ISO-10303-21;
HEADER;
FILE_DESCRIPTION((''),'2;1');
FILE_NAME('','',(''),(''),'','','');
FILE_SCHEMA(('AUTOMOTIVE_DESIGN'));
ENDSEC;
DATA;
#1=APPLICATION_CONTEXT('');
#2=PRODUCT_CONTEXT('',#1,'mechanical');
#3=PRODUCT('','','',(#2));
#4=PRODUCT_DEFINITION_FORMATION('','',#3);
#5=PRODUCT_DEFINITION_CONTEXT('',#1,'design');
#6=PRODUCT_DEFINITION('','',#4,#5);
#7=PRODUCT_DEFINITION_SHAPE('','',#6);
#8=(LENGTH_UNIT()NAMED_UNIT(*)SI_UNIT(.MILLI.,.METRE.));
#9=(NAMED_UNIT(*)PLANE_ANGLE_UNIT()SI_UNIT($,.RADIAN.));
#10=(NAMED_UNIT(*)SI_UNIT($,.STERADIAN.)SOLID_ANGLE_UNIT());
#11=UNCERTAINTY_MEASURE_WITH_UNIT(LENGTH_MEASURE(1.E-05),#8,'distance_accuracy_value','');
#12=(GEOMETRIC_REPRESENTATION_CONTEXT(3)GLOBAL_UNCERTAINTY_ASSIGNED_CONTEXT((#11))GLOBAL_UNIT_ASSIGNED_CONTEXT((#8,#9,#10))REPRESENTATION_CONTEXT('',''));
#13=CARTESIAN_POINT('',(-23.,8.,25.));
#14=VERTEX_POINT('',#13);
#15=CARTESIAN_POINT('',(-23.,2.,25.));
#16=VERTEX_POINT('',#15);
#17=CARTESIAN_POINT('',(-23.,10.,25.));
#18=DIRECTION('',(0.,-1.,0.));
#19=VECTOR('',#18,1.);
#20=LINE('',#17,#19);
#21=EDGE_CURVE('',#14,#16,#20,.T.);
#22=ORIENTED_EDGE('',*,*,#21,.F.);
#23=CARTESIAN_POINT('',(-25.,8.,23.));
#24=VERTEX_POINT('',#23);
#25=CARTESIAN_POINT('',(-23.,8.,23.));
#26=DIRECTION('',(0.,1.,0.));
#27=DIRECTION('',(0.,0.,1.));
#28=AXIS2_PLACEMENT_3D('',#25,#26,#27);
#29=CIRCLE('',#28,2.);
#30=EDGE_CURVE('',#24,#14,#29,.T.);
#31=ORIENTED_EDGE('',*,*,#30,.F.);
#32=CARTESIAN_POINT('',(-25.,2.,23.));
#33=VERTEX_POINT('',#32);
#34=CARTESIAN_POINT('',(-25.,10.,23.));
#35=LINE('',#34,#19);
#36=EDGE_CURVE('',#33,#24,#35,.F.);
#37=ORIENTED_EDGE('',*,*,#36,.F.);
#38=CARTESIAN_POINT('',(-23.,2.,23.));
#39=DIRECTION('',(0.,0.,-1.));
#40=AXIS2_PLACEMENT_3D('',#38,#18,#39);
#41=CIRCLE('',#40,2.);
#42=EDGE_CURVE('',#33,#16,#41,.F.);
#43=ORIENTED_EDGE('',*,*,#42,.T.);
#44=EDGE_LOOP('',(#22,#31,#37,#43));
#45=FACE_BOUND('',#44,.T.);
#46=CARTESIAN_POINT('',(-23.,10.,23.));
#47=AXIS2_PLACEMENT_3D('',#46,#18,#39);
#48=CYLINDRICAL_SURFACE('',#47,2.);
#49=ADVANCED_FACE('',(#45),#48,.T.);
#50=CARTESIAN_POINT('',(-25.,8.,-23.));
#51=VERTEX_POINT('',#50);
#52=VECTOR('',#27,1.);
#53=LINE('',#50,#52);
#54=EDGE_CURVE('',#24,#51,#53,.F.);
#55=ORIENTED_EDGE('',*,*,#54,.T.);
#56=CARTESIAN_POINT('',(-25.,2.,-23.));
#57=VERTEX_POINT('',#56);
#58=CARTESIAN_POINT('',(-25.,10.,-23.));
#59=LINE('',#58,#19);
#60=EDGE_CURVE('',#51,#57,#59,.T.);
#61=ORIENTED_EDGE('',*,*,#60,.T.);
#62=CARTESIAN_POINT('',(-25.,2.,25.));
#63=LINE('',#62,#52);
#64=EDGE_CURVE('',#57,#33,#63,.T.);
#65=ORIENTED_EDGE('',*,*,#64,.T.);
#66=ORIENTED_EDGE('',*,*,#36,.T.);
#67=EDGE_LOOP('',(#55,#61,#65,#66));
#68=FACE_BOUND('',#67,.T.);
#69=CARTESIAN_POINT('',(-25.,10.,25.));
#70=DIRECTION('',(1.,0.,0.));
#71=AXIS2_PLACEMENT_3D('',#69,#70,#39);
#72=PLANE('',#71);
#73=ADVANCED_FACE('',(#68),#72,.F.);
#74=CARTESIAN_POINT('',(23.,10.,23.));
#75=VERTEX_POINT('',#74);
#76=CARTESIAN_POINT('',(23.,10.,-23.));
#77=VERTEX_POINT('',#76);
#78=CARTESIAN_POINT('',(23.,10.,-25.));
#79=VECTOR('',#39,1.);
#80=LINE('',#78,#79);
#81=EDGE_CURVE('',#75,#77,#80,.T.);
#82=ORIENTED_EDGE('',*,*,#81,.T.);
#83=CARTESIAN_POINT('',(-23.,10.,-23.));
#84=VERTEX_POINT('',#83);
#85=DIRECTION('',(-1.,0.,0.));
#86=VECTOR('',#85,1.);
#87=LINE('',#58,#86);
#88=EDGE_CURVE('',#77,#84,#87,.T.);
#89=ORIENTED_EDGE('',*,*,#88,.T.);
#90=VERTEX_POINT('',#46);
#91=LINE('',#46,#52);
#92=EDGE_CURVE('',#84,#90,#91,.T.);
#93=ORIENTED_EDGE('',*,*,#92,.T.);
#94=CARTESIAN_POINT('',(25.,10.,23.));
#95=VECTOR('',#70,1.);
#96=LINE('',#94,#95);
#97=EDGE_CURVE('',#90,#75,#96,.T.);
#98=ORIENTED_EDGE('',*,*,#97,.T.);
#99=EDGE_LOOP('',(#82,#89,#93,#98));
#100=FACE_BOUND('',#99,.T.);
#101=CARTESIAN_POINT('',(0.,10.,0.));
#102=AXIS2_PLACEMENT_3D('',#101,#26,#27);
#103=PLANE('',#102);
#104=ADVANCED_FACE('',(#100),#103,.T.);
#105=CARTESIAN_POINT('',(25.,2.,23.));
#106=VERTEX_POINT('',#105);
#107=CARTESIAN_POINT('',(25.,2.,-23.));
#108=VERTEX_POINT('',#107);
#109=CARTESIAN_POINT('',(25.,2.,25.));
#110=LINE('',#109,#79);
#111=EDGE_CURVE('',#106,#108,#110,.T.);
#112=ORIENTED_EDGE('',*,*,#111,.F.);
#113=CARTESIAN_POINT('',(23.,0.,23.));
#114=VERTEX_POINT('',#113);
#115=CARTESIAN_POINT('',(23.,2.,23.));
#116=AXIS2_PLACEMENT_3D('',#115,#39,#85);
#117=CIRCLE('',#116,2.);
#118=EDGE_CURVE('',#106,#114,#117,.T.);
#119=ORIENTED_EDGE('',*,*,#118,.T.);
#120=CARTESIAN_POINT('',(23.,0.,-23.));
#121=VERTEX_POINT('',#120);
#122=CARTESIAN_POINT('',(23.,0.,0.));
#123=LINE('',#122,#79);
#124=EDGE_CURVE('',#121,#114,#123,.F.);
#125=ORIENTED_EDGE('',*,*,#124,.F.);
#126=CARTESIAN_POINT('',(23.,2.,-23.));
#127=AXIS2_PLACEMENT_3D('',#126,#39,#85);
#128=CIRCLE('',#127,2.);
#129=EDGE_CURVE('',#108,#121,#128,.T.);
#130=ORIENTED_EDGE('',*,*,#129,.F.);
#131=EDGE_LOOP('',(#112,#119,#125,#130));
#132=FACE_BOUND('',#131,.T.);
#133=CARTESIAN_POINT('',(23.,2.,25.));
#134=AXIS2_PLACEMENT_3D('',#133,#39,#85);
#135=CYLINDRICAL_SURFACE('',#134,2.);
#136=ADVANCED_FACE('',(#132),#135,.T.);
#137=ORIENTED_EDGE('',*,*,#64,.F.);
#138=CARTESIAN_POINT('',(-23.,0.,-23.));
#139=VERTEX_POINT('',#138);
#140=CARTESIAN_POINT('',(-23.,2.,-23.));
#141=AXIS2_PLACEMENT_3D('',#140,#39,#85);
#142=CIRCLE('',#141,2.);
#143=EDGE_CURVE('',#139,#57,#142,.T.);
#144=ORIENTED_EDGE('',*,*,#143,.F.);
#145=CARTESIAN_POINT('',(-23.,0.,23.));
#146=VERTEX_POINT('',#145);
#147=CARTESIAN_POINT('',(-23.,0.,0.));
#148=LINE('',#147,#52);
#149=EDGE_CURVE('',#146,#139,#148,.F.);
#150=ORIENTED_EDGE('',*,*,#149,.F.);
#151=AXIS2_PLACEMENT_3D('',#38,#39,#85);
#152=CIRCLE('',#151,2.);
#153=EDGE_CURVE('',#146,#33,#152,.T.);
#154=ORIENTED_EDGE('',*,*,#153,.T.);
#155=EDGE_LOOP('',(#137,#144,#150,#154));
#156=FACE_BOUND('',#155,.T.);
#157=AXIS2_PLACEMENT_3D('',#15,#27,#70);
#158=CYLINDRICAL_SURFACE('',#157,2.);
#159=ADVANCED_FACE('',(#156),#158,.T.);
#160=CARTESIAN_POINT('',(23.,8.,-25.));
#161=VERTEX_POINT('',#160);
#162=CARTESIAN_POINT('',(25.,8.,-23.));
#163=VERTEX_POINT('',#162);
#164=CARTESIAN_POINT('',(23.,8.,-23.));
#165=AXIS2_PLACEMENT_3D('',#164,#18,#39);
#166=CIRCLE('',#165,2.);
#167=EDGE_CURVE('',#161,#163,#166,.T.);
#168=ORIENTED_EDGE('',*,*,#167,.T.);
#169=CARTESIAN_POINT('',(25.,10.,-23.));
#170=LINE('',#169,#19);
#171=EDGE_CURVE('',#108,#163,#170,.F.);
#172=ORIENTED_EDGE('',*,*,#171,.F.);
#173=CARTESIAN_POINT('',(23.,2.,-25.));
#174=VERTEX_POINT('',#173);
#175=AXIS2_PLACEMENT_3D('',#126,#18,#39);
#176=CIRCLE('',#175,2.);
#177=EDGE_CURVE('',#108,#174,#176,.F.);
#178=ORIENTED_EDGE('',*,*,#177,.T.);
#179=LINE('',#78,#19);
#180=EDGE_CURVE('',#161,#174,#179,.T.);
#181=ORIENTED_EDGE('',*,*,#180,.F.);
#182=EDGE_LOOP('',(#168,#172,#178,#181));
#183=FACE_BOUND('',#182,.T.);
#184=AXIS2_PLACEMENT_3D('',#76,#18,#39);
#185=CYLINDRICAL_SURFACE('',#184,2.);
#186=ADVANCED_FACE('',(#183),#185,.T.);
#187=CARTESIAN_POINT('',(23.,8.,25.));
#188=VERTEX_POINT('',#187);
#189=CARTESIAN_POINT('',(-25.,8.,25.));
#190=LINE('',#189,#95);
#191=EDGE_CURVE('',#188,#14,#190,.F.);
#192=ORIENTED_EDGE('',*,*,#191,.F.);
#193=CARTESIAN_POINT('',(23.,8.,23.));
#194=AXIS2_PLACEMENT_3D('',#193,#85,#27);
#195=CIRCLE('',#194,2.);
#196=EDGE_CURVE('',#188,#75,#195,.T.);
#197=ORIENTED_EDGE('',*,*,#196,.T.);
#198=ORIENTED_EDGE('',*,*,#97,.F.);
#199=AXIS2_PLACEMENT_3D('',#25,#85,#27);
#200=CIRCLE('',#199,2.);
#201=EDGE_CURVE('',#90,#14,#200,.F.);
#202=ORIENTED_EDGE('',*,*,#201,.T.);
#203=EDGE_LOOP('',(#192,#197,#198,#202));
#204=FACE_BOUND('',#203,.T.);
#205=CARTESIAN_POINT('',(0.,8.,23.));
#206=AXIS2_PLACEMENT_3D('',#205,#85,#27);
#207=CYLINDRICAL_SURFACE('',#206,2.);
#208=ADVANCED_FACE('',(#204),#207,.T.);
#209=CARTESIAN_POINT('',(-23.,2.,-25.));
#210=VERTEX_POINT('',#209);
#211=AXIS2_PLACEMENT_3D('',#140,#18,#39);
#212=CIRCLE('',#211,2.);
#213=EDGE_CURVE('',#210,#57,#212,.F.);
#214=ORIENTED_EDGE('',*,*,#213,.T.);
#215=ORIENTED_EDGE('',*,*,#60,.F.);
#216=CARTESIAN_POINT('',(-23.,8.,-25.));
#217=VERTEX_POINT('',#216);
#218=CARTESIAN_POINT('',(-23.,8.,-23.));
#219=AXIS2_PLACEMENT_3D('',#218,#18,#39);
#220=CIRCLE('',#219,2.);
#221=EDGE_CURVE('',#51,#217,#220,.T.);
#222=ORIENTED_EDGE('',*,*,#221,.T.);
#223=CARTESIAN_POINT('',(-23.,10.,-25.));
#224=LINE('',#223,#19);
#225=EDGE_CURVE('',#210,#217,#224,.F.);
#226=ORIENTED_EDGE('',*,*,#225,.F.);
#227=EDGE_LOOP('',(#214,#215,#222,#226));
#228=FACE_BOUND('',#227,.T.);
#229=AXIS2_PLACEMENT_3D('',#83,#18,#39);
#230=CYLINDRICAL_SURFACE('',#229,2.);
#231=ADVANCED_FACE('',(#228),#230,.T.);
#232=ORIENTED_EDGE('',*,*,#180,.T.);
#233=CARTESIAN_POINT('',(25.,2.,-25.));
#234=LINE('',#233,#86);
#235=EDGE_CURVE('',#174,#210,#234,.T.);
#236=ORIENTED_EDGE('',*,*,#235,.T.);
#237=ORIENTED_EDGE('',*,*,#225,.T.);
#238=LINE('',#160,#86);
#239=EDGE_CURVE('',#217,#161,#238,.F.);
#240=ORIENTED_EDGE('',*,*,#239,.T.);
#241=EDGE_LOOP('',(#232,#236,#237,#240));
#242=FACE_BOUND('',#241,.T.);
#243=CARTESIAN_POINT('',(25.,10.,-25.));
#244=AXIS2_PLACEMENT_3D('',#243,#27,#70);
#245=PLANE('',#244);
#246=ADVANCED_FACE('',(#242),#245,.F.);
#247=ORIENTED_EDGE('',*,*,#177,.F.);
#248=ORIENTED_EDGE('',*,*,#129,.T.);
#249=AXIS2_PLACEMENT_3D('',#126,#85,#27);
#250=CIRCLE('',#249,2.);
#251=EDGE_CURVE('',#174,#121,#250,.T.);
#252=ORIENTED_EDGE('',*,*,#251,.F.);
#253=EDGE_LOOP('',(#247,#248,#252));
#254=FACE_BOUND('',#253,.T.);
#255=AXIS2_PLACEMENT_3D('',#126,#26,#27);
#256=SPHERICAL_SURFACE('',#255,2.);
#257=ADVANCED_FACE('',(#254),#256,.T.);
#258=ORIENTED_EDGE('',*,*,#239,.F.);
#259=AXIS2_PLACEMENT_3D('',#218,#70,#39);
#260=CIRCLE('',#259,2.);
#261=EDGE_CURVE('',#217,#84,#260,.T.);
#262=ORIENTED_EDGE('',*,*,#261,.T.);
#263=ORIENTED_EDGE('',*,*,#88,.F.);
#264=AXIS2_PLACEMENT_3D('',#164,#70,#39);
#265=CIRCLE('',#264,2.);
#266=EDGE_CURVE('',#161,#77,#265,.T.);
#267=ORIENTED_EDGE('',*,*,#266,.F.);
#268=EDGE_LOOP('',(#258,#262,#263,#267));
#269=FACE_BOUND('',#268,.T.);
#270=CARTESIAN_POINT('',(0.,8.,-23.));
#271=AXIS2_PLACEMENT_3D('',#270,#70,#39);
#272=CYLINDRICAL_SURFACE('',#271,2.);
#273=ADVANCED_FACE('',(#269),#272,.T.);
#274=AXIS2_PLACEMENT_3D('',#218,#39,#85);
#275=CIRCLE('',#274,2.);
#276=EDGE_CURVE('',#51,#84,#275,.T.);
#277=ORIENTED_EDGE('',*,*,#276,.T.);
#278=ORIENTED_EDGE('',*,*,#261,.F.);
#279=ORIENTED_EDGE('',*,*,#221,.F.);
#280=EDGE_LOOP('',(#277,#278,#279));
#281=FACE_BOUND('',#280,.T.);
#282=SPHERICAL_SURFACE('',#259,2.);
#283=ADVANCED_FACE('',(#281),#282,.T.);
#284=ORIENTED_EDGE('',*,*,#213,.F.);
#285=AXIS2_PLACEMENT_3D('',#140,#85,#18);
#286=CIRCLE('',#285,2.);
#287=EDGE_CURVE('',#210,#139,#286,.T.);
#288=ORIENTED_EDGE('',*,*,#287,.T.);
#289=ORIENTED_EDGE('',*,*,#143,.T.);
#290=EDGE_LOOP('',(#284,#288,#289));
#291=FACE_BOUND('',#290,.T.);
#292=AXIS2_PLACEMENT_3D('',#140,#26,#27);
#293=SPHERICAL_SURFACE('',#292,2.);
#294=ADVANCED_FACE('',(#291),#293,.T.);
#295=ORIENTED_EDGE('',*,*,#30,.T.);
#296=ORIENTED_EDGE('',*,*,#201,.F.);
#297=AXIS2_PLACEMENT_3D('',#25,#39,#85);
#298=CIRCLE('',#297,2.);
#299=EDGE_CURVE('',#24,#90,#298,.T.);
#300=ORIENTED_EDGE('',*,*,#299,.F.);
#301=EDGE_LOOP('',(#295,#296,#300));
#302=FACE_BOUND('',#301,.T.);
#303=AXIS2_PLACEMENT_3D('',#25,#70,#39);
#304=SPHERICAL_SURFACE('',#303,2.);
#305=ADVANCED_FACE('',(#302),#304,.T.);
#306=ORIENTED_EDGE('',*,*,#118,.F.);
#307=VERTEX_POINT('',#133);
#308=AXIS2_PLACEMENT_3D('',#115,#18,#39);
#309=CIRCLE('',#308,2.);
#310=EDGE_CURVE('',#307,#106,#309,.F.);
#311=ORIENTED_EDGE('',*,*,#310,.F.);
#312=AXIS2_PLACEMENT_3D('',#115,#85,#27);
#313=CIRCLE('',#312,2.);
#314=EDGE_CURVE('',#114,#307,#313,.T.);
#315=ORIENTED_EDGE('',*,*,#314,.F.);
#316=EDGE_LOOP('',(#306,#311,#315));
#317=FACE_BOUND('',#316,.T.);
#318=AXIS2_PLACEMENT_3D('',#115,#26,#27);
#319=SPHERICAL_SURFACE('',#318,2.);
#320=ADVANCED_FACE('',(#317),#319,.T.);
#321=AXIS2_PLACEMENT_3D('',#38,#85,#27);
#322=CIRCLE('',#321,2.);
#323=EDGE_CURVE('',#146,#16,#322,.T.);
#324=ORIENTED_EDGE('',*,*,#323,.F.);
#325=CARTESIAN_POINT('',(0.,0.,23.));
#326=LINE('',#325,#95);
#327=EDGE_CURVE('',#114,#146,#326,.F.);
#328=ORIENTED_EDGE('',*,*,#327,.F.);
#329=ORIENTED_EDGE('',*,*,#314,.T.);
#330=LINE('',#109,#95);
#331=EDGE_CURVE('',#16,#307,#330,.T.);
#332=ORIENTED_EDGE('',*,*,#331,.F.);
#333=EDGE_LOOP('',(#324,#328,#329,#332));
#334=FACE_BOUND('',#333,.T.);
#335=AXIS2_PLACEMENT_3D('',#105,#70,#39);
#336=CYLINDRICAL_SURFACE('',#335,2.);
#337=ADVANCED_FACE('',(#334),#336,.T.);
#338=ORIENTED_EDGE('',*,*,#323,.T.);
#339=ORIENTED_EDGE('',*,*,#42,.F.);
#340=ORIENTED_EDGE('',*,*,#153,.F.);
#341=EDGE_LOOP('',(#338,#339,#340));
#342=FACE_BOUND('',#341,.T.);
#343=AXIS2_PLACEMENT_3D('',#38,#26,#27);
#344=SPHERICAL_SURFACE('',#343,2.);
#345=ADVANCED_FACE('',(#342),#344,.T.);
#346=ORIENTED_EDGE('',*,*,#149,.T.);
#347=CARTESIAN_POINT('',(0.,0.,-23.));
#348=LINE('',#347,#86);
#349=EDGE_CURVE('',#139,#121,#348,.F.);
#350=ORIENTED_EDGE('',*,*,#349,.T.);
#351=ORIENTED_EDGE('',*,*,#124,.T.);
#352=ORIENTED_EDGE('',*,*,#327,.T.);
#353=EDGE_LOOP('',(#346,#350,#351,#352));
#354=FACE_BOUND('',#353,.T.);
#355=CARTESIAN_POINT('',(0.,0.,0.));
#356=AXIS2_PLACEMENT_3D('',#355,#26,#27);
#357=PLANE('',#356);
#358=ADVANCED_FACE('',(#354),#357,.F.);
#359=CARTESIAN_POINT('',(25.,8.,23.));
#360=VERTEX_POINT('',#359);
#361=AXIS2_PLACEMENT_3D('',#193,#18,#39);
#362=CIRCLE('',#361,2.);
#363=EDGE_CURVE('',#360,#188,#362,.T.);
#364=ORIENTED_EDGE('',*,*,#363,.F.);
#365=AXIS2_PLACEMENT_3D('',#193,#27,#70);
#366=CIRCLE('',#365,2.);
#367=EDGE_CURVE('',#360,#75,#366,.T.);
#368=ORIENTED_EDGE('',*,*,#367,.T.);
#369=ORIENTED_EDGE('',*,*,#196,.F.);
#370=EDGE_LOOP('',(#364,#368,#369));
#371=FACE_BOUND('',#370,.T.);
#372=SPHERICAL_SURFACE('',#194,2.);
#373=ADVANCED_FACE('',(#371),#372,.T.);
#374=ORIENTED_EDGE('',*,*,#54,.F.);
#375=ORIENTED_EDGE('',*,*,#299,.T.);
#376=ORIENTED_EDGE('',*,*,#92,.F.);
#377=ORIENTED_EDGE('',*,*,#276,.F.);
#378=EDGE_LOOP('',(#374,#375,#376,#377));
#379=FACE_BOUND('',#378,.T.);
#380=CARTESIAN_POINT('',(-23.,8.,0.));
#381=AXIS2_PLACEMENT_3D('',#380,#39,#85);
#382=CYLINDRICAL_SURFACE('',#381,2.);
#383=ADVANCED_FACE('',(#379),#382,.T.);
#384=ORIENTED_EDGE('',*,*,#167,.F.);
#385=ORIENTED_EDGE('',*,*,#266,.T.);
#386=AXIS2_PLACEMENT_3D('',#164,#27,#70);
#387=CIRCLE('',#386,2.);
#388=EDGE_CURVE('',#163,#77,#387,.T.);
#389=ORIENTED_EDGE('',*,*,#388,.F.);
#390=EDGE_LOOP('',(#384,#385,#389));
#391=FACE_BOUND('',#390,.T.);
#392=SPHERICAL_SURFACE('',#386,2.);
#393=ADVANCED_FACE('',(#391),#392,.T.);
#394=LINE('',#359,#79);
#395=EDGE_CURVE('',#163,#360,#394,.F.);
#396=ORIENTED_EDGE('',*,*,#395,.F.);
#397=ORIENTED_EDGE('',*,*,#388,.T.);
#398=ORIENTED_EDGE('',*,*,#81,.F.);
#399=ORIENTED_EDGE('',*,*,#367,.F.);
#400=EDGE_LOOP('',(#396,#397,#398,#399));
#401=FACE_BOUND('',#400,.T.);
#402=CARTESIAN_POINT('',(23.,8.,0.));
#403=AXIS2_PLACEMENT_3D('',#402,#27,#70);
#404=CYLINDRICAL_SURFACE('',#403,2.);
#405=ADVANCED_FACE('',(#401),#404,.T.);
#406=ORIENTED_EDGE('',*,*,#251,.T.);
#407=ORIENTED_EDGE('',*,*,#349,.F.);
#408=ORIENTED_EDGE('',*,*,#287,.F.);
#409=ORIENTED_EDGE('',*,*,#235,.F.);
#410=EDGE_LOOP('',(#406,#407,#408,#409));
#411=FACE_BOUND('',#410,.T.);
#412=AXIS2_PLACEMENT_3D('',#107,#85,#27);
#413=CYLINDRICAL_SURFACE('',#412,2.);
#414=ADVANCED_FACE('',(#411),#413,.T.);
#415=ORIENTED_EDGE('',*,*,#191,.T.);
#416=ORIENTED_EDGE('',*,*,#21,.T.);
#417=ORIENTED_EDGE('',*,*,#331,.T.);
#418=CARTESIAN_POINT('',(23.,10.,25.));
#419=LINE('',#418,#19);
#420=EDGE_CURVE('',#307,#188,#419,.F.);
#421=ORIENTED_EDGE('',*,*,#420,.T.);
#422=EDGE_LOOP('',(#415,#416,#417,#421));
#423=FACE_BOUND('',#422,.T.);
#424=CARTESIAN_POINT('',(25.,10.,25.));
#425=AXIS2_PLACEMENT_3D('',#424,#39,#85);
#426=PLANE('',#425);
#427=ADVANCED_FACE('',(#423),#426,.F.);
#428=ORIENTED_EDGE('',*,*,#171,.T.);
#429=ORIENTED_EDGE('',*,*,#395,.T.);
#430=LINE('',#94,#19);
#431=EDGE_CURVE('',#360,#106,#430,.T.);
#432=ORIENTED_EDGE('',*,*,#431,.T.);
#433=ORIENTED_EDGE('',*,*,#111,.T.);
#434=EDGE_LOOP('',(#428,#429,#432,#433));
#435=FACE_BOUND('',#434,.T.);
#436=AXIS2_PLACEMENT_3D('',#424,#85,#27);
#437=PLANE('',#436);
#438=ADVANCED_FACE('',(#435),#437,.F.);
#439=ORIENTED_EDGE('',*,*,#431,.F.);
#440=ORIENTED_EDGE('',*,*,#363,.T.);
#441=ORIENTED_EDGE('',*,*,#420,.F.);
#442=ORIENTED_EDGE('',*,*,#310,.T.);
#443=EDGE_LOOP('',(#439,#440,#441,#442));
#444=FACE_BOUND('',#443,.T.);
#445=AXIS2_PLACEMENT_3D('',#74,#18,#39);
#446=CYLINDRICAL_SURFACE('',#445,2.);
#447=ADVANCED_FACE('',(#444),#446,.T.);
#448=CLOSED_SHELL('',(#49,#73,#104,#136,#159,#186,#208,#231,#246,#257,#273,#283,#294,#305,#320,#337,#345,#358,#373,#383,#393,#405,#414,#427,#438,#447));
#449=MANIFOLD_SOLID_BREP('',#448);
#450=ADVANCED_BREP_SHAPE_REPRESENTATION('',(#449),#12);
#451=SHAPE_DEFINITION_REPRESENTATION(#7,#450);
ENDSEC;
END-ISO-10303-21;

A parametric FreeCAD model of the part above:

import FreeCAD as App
import Part
import Sketcher
from FreeCAD import Vector


def edges_at(feature, points):
    """Names of the edges that pass closest to the given points."""
    edges = feature.Shape.Edges
    near = lambda p: min(range(len(edges)), key=lambda i: edges[i].distToShape(Part.Vertex(*p))[0])
    return sorted({f"Edge{near(p) + 1}" for p in points})

doc = App.newDocument("Part")
body = doc.addObject("PartDesign::Body", "Body")

sketch1 = body.newObject("Sketcher::SketchObject", "Sketch")
sketch1.AttachmentSupport = (doc.getObject("XZ_Plane"), [""])
sketch1.MapMode = "FlatFace"
sketch1.addGeometry(Part.LineSegment(Vector(-25, -25, 0), Vector(-25, 25, 0)), False)
sketch1.addGeometry(Part.LineSegment(Vector(-25, 25, 0), Vector(25, 25, 0)), False)
sketch1.addGeometry(Part.LineSegment(Vector(25, 25, 0), Vector(25, -25, 0)), False)
sketch1.addGeometry(Part.LineSegment(Vector(25, -25, 0), Vector(-25, -25, 0)), False)
sketch1.addConstraint(Sketcher.Constraint("Coincident", 0, 2, 1, 1))
sketch1.addConstraint(Sketcher.Constraint("Coincident", 1, 2, 2, 1))
sketch1.addConstraint(Sketcher.Constraint("Coincident", 2, 2, 3, 1))
sketch1.addConstraint(Sketcher.Constraint("Coincident", 3, 2, 0, 1))
sketch1.addConstraint(Sketcher.Constraint("Vertical", 0))
sketch1.addConstraint(Sketcher.Constraint("Horizontal", 1))
sketch1.addConstraint(Sketcher.Constraint("Vertical", 2))
sketch1.addConstraint(Sketcher.Constraint("Horizontal", 3))
sketch1.addConstraint(Sketcher.Constraint("Symmetric", 0, 2, 2, 2, -1, 1))
sketch1.addConstraint(Sketcher.Constraint("Equal", 3, 0))
sketch1.addConstraint(Sketcher.Constraint("DistanceX", 1, 1, 1, 2, 50.0))
pad1 = body.newObject("PartDesign::Pad", "Pad")
pad1.Profile = sketch1
pad1.Length = 10
pad1.Reversed = True
doc.recompute()

fillet = body.newObject("PartDesign::Fillet", "Fillet")
fillet.Base = (pad1, edges_at(pad1, [(0, 10, 25)]))
fillet.Radius = 2
doc.recompute()

fillet2 = body.newObject("PartDesign::Fillet", "Fillet001")
fillet2.Base = (fillet, edges_at(fillet, [(25, 10, -1), (25, 4, 25), (25, 9.414, 24.414)]))
fillet2.Radius = 2
doc.recompute()

fillet3 = body.newObject("PartDesign::Fillet", "Fillet002")
fillet3.Base = (fillet2, edges_at(fillet2, [(25, 4, -25), (-1, 10, -25), (24.414, 9.414, -25)]))
fillet3.Radius = 2
doc.recompute()

fillet4 = body.newObject("PartDesign::Fillet", "Fillet003")
fillet4.Base = (fillet3, edges_at(fillet3, [
    (-25, 4, 25),
    (-25, 9.414, 24.414),
    (-25, 4, -25),
    (-25, 10, 0),
    (-25, 9.414, -24.414),
]))
fillet4.Radius = 2
doc.recompute()

fillet5 = body.newObject("PartDesign::Fillet", "Fillet004")
fillet5.Base = (fillet4, edges_at(fillet4, [
    (25, 0, 0),
    (24.414, 0, 24.414),
    (0, 0, -25),
    (24.414, 0, -24.414),
    (-25, 0, 0),
    (0, 0, 25),
    (-24.414, 0, 24.414),
    (-24.414, 0, -24.414),
]))
fillet5.Radius = 2

doc.recompute()
